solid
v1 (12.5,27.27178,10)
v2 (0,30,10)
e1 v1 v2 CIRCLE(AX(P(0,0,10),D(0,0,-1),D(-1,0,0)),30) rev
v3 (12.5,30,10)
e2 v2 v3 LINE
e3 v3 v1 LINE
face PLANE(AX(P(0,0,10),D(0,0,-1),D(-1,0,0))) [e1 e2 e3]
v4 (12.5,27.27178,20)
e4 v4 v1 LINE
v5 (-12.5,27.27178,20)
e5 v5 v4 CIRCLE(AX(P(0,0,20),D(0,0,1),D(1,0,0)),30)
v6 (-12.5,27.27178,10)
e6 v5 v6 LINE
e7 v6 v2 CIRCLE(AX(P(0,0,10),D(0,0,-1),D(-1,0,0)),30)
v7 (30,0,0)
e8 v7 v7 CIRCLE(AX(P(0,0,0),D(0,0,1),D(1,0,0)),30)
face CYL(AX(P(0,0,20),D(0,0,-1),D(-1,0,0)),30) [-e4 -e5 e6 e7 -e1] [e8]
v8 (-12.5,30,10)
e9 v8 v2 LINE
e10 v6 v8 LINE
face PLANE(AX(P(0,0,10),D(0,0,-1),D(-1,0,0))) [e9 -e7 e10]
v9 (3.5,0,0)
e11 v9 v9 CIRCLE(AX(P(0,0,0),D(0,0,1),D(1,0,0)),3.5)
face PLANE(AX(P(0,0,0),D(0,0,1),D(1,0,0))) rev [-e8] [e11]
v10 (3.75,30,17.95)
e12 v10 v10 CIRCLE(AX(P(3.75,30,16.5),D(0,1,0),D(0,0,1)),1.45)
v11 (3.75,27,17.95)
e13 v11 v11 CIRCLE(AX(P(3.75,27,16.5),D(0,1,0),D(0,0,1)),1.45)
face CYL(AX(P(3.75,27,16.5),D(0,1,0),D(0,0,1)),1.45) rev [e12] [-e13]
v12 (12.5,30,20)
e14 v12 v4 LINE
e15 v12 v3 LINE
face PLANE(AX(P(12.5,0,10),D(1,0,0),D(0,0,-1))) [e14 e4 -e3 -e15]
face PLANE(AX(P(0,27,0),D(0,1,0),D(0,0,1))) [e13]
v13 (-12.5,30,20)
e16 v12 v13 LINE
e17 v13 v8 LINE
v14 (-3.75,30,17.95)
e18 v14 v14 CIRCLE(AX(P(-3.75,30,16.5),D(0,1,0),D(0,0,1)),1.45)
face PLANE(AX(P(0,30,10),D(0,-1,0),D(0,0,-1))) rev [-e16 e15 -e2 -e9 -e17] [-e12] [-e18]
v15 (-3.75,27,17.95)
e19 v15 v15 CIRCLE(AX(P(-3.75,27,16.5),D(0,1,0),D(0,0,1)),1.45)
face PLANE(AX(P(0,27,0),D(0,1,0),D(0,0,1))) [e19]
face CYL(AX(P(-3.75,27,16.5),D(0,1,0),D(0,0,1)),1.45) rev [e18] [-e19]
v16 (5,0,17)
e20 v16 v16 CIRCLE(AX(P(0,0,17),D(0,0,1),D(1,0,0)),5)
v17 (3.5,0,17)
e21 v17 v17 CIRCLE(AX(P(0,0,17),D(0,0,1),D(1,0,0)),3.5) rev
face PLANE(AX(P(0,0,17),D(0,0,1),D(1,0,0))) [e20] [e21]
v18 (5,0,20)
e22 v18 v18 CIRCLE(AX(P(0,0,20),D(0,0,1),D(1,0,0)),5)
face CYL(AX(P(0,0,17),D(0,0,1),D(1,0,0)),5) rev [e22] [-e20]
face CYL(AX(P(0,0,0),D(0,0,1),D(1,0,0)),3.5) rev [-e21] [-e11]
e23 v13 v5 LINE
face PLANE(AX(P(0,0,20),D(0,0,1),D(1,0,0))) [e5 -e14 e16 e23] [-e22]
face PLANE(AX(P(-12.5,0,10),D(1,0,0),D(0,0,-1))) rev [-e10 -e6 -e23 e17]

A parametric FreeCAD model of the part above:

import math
import FreeCAD as App
import Part
import Sketcher

V = App.Vector
Q = App.Units.Quantity

doc = App.newDocument("Part")
body = doc.addObject("PartDesign::Body", "Body")

# Sketch on XY plane
sketch1 = body.newObject("Sketcher::SketchObject", "Sketch")
sketch1.AttachmentSupport = (doc.getObject("XY_Plane"), [""])
sketch1.MapMode = "FlatFace"
sketch1.addGeometry(Part.Circle(V(0, 0, 0), V(0, 0, 1), 30), False)
sketch1.addConstraint([
    Sketcher.Constraint("Coincident", 0, 3, -1, 1),
    Sketcher.Constraint("Diameter", 0, Q("60 mm")),
])
pad1 = body.newObject("PartDesign::Pad", "Pad")
pad1.Profile = sketch1
pad1.Length = 20

# Sketch on XY plane
sketch2 = body.newObject("Sketcher::SketchObject", "Sketch001")
sketch2.AttachmentSupport = (doc.getObject("XY_Plane"), [""])
sketch2.MapMode = "FlatFace"
sketch2.addGeometry([
    Part.LineSegment(V(-12.5, 30, 0), V(0, 30, 0)),  # 0
    Part.ArcOfCircle(Part.Circle(V(0, 0, 0), V(0, 0, 1), 30), math.radians(90), math.radians(114.624318)),  # 1
    Part.LineSegment(V(-12.5, 27.27178, 0), V(-12.5, 30, 0)),  # 2
    Part.LineSegment(V(0, 30, 0), V(12.5, 30, 0)),  # 3
    Part.LineSegment(V(12.5, 30, 0), V(12.5, 27.27178, 0)),  # 4
    Part.ArcOfCircle(Part.Circle(V(0, 0, 0), V(0, 0, 1), 30), math.radians(65.375682), math.radians(90)),  # 5
], False)
sketch2.addConstraint([
    Sketcher.Constraint("Tangent", 0, 2, 1, 1),
    Sketcher.Constraint("Coincident", 1, 2, 2, 1),
    Sketcher.Constraint("Coincident", 2, 2, 0, 1),
    Sketcher.Constraint("Coincident", 3, 2, 4, 1),
    Sketcher.Constraint("Coincident", 4, 2, 5, 1),
    Sketcher.Constraint("Tangent", 5, 2, 3, 1),
    Sketcher.Constraint("Horizontal", 0),
    Sketcher.Constraint("Vertical", 2),
    Sketcher.Constraint("Horizontal", 3),
    Sketcher.Constraint("Vertical", 4),
    Sketcher.Constraint("Coincident", 1, 3, -1, 1),
    Sketcher.Constraint("Coincident", 5, 3, -1, 1),
    Sketcher.Constraint("Equal", 1, 5),
    Sketcher.Constraint("Horizontal", 1, 2, 4, 2),
    Sketcher.Constraint("Radius", 1, Q("30 mm")),
    Sketcher.Constraint("DistanceX", 0, 1, 0, 2, Q("12.5 mm")),
])
pad2 = body.newObject("PartDesign::Pad", "Pad001")
pad2.Profile = sketch2
pad2.Length = 10

# Sketch on XY plane
sketch3 = body.newObject("Sketcher::SketchObject", "Sketch002")
sketch3.AttachmentSupport = (doc.getObject("XY_Plane"), [""])
sketch3.MapMode = "FlatFace"
sketch3.AttachmentOffset = App.Placement(V(0, 0, 10), App.Rotation())
sketch3.addGeometry([
    Part.LineSegment(V(-12.5, 30, 0), V(-12.5, 27.27178, 0)),  # 0
    Part.ArcOfCircle(Part.Circle(V(0, 0, 0), V(0, 0, 1), 30), math.radians(90), math.radians(114.624318)),  # 1
    Part.LineSegment(V(0, 30, 0), V(-12.5, 30, 0)),  # 2
    Part.ArcOfCircle(Part.Circle(V(0, 0, 0), V(0, 0, 1), 30), math.radians(65.375682), math.radians(90)),  # 3
    Part.LineSegment(V(12.5, 27.27178, 0), V(12.5, 30, 0)),  # 4
    Part.LineSegment(V(12.5, 30, 0), V(0, 30, 0)),  # 5
], False)
sketch3.addConstraint([
    Sketcher.Constraint("Coincident", 0, 2, 1, 2),
    Sketcher.Constraint("Tangent", 1, 1, 2, 1),
    Sketcher.Constraint("Coincident", 2, 2, 0, 1),
    Sketcher.Constraint("Coincident", 3, 1, 4, 1),
    Sketcher.Constraint("Coincident", 4, 2, 5, 1),
    Sketcher.Constraint("Tangent", 5, 2, 3, 2),
    Sketcher.Constraint("Vertical", 0),
    Sketcher.Constraint("Horizontal", 2),
    Sketcher.Constraint("Vertical", 4),
    Sketcher.Constraint("Horizontal", 5),
    Sketcher.Constraint("Coincident", 1, 3, -1, 1),
    Sketcher.Constraint("Coincident", 3, 3, -1, 1),
    Sketcher.Constraint("Equal", 1, 3),
    Sketcher.Constraint("Horizontal", 0, 2, 3, 1),
    Sketcher.Constraint("Radius", 1, Q("30 mm")),
    Sketcher.Constraint("DistanceX", 2, 2, 2, 1, Q("12.5 mm")),
])
pad3 = body.newObject("PartDesign::Pad", "Pad002")
pad3.Profile = sketch3
pad3.Length = 10

# Sketch on XY plane
sketch4 = body.newObject("Sketcher::SketchObject", "Sketch003")
sketch4.AttachmentSupport = (doc.getObject("XY_Plane"), [""])
sketch4.MapMode = "FlatFace"
sketch4.addGeometry([
    Part.LineSegment(V(12.5, 30, 0), V(12.5, 27.27178, 0)),  # 0
    Part.ArcOfCircle(Part.Circle(V(0, 0, 0), V(0, 0, 1), 30), math.radians(65.375682), math.radians(90)),  # 1
    Part.LineSegment(V(0, 30, 0), V(12.5, 30, 0)),  # 2
    Part.ArcOfCircle(Part.Circle(V(0, 0, 0), V(0, 0, 1), 30), math.radians(90), math.radians(114.624318)),  # 3
    Part.LineSegment(V(-12.5, 27.27178, 0), V(-12.5, 30, 0)),  # 4
    Part.LineSegment(V(-12.5, 30, 0), V(0, 30, 0)),  # 5
], False)
sketch4.addConstraint([
    Sketcher.Constraint("Coincident", 0, 2, 1, 1),
    Sketcher.Constraint("Tangent", 1, 2, 2, 1),
    Sketcher.Constraint("Coincident", 2, 2, 0, 1),
    Sketcher.Constraint("Coincident", 3, 2, 4, 1),
    Sketcher.Constraint("Coincident", 4, 2, 5, 1),
    Sketcher.Constraint("Tangent", 5, 2, 3, 1),
    Sketcher.Constraint("Vertical", 0),
    Sketcher.Constraint("Horizontal", 2),
    Sketcher.Constraint("Vertical", 4),
    Sketcher.Constraint("Horizontal", 5),
    Sketcher.Constraint("Coincident", 1, 3, -1, 1),
    Sketcher.Constraint("Coincident", 3, 3, -1, 1),
    Sketcher.Constraint("Equal", 1, 3),
    Sketcher.Constraint("Horizontal", 0, 2, 3, 2),
    Sketcher.Constraint("Radius", 1, Q("30 mm")),
    Sketcher.Constraint("DistanceX", 2, 1, 2, 2, Q("12.5 mm")),
])
pocket1 = body.newObject("PartDesign::Pocket", "Pocket")
pocket1.Profile = sketch4
pocket1.Length = 10
pocket1.Reversed = True

# Sketch on XZ plane
sketch5 = body.newObject("Sketcher::SketchObject", "Sketch004")
sketch5.AttachmentSupport = (doc.getObject("XZ_Plane"), [""])
sketch5.MapMode = "FlatFace"
sketch5.AttachmentOffset = App.Placement(V(0, 0, -30), App.Rotation())
sketch5.addGeometry([
    Part.Circle(V(-3.75, 16.5, 0), V(0, 0, 1), 1.45),
    Part.Circle(V(3.75, 16.5, 0), V(0, 0, 1), 1.45),
], False)
sketch5.addConstraint([
    Sketcher.Constraint("Equal", 0, 1),
    Sketcher.Constraint("Symmetric", 0, 3, 1, 3, -2),
    Sketcher.Constraint("Diameter", 0, Q("2.9 mm")),
    Sketcher.Constraint("DistanceY", -1, 1, 0, 3, Q("16.5 mm")),
    Sketcher.Constraint("DistanceX", 0, 3, 1, 3, Q("7.5 mm")),
])
pocket2 = body.newObject("PartDesign::Pocket", "Pocket001")
pocket2.Profile = sketch5
pocket2.Length = 3
pocket2.Reversed = True

# Sketch on XY plane
sketch6 = body.newObject("Sketcher::SketchObject", "Sketch005")
sketch6.AttachmentSupport = (doc.getObject("XY_Plane"), [""])
sketch6.MapMode = "FlatFace"
sketch6.AttachmentOffset = App.Placement(V(0, 0, 20), App.Rotation())
sketch6.addGeometry(Part.Circle(V(0, 0, 0), V(0, 0, 1), 3.5), False)
sketch6.addConstraint([
    Sketcher.Constraint("Coincident", 0, 3, -1, 1),
    Sketcher.Constraint("Diameter", 0, Q("7 mm")),
])
pocket3 = body.newObject("PartDesign::Pocket", "Pocket002")
pocket3.Profile = sketch6
pocket3.Type = "ThroughAll"

# Sketch on XY plane
sketch7 = body.newObject("Sketcher::SketchObject", "Sketch006")
sketch7.AttachmentSupport = (doc.getObject("XY_Plane"), [""])
sketch7.MapMode = "FlatFace"
sketch7.AttachmentOffset = App.Placement(V(0, 0, 20), App.Rotation())
sketch7.addGeometry(Part.Circle(V(0, 0, 0), V(0, 0, 1), 5), False)
sketch7.addConstraint([
    Sketcher.Constraint("Coincident", 0, 3, -1, 1),
    Sketcher.Constraint("Diameter", 0, Q("10 mm")),
])
pocket4 = body.newObject("PartDesign::Pocket", "Pocket003")
pocket4.Profile = sketch7
pocket4.Length = 3

doc.recompute()
